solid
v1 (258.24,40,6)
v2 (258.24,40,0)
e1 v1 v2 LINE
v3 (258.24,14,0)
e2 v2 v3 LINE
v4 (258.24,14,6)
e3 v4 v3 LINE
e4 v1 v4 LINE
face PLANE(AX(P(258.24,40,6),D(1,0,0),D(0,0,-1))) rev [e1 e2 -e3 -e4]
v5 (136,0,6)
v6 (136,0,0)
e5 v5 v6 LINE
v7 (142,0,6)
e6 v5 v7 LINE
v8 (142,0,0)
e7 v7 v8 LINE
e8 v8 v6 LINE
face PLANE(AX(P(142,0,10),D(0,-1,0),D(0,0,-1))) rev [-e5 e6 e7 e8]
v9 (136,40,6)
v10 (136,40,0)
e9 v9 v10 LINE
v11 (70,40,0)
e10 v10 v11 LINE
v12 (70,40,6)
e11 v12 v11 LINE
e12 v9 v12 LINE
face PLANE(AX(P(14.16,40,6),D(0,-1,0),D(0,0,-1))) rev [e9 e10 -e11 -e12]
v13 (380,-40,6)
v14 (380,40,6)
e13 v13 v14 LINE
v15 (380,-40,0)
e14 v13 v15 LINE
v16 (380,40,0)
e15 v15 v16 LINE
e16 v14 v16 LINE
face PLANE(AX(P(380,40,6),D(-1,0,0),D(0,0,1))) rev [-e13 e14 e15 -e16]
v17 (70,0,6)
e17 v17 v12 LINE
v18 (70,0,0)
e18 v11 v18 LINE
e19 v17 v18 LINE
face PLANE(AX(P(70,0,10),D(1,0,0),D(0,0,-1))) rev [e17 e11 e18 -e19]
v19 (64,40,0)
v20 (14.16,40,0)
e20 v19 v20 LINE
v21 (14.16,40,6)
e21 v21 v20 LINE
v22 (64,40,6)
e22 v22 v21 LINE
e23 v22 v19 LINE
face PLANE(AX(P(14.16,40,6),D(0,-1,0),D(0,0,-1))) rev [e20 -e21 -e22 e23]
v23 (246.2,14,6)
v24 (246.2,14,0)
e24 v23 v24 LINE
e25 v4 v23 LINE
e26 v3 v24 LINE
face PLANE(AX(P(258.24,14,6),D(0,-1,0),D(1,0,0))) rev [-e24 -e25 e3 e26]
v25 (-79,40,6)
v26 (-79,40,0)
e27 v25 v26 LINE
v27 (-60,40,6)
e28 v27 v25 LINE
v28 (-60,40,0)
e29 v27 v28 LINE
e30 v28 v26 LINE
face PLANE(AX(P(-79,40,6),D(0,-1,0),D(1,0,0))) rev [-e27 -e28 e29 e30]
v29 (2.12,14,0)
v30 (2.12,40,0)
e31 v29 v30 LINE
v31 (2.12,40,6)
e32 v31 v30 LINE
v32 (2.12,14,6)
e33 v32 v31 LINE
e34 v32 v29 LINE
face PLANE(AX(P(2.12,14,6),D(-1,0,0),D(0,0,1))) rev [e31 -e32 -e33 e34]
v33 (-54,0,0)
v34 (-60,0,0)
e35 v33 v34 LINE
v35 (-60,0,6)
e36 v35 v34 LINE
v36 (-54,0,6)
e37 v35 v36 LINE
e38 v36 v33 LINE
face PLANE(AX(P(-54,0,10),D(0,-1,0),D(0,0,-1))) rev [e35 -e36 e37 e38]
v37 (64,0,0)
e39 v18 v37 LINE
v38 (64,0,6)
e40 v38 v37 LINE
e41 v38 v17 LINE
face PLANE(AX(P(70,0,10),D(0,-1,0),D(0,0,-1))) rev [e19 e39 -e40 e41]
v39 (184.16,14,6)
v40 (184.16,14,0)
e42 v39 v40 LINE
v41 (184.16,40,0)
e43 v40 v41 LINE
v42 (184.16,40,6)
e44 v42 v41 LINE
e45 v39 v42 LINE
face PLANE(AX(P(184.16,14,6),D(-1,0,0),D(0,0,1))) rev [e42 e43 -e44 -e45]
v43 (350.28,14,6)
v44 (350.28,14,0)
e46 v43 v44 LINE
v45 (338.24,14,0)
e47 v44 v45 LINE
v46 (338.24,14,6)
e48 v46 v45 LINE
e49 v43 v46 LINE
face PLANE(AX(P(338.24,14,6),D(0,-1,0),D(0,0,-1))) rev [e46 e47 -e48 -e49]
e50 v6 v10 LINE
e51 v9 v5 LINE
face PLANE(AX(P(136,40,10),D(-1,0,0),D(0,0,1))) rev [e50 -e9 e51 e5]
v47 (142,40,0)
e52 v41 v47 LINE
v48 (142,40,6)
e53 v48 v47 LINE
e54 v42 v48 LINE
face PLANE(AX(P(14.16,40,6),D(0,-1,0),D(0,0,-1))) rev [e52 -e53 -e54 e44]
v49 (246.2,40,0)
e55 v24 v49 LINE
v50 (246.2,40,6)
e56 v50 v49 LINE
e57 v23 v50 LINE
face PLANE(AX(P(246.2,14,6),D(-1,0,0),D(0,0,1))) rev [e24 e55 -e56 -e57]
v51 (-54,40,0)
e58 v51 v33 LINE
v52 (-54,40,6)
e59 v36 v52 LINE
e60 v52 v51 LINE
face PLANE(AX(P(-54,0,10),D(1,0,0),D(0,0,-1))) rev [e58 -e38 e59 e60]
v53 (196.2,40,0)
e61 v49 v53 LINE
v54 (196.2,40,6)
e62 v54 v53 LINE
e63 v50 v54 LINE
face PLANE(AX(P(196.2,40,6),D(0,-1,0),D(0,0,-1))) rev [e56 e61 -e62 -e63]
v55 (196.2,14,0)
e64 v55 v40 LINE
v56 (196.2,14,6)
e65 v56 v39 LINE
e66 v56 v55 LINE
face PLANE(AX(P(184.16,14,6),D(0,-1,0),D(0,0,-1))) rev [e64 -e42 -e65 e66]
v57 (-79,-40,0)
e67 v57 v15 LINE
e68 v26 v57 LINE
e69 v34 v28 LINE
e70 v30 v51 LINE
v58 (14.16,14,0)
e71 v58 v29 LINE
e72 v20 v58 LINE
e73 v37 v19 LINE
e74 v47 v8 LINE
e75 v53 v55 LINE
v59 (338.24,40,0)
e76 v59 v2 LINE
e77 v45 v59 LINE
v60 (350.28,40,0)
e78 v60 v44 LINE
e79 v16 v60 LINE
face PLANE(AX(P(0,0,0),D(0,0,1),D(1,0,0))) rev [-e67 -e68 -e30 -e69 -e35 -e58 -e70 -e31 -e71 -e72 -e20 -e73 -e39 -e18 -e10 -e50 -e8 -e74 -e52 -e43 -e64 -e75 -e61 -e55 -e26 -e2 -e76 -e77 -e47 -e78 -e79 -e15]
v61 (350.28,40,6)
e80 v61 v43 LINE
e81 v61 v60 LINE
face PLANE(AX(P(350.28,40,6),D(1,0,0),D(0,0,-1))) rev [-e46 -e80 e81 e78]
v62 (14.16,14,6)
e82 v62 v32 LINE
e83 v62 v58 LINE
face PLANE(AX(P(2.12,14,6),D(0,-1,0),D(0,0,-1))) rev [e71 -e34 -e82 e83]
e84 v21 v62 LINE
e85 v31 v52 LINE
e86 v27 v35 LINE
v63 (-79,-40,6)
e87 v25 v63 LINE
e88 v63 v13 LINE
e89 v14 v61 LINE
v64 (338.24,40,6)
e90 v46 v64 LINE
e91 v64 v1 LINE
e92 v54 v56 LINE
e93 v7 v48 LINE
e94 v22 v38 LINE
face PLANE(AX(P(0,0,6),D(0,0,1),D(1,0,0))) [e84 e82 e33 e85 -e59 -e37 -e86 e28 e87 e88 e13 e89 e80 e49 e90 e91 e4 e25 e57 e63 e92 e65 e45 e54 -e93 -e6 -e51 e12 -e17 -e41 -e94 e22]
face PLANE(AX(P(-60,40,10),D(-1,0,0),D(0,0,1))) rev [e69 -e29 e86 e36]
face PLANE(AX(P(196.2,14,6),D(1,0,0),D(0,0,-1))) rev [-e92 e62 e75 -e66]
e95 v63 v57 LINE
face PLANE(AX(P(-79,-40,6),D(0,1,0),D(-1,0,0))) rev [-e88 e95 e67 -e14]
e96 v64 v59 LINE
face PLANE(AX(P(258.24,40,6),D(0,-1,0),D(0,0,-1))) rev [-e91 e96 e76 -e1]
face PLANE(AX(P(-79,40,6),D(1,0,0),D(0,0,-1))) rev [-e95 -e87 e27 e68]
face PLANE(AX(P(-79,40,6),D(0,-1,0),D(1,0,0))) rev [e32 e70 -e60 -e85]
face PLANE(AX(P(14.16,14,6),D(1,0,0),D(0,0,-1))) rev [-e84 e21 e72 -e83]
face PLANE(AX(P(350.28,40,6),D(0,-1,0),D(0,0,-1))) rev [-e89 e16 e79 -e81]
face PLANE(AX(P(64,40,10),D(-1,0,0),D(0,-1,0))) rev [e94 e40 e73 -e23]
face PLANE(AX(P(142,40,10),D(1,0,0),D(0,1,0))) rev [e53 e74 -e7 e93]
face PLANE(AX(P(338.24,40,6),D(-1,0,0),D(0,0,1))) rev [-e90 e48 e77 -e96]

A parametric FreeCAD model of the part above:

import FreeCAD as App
import Part
import Sketcher

V = App.Vector

doc = App.newDocument("Part")
body = doc.addObject("PartDesign::Body", "Body")

# Sketch on XY plane
sketch1 = doc.addObject("Sketcher::SketchObject", "Sketch")
body.addObject(sketch1)
sketch1.AttachmentSupport = (doc.XY_Plane, [""])
sketch1.MapMode = "FlatFace"
sketch1.addGeometry([
    Part.LineSegment(V(-79, -40, 0), V(380, -40, 0)),  # 0
    Part.LineSegment(V(380, -40, 0), V(380, 40, 0)),  # 1
    Part.LineSegment(V(380, 40, 0), V(350.28, 40, 0)),  # 2
    Part.LineSegment(V(350.28, 40, 0), V(350.28, 14, 0)),  # 3
    Part.LineSegment(V(350.28, 14, 0), V(338.24, 14, 0)),  # 4
    Part.LineSegment(V(338.24, 14, 0), V(338.24, 40, 0)),  # 5
    Part.LineSegment(V(338.24, 40, 0), V(258.24, 40, 0)),  # 6
    Part.LineSegment(V(258.24, 40, 0), V(258.24, 14, 0)),  # 7
    Part.LineSegment(V(258.24, 14, 0), V(246.2, 14, 0)),  # 8
    Part.LineSegment(V(246.2, 14, 0), V(246.2, 40, 0)),  # 9
    Part.LineSegment(V(246.2, 40, 0), V(196.2, 40, 0)),  # 10
    Part.LineSegment(V(196.2, 40, 0), V(196.2, 14, 0)),  # 11
    Part.LineSegment(V(196.2, 14, 0), V(184.16, 14, 0)),  # 12
    Part.LineSegment(V(184.16, 14, 0), V(184.16, 40, 0)),  # 13
    Part.LineSegment(V(184.16, 40, 0), V(14.16, 40, 0)),  # 14
    Part.LineSegment(V(14.16, 40, 0), V(14.16, 14, 0)),  # 15
    Part.LineSegment(V(14.16, 14, 0), V(2.12, 14, 0)),  # 16
    Part.LineSegment(V(2.12, 14, 0), V(2.12, 40, 0)),  # 17
    Part.LineSegment(V(2.12, 40, 0), V(-79, 40, 0)),  # 18
    Part.LineSegment(V(-79, 40, 0), V(-79, -40, 0)),  # 19
], False)
sketch1.addConstraint([
    Sketcher.Constraint("Coincident", 0, 2, 1, 1),
    Sketcher.Constraint("Coincident", 1, 2, 2, 1),
    Sketcher.Constraint("Coincident", 2, 2, 3, 1),
    Sketcher.Constraint("Coincident", 3, 2, 4, 1),
    Sketcher.Constraint("Coincident", 4, 2, 5, 1),
    Sketcher.Constraint("Coincident", 5, 2, 6, 1),
    Sketcher.Constraint("Coincident", 6, 2, 7, 1),
    Sketcher.Constraint("Coincident", 7, 2, 8, 1),
    Sketcher.Constraint("Coincident", 8, 2, 9, 1),
    Sketcher.Constraint("Coincident", 9, 2, 10, 1),
    Sketcher.Constraint("Coincident", 10, 2, 11, 1),
    Sketcher.Constraint("Coincident", 11, 2, 12, 1),
    Sketcher.Constraint("Coincident", 12, 2, 13, 1),
    Sketcher.Constraint("Coincident", 13, 2, 14, 1),
    Sketcher.Constraint("Coincident", 14, 2, 15, 1),
    Sketcher.Constraint("Coincident", 15, 2, 16, 1),
    Sketcher.Constraint("Coincident", 16, 2, 17, 1),
    Sketcher.Constraint("Coincident", 17, 2, 18, 1),
    Sketcher.Constraint("Coincident", 18, 2, 19, 1),
    Sketcher.Constraint("Coincident", 19, 2, 0, 1),
    Sketcher.Constraint("Horizontal", 0),
    Sketcher.Constraint("Vertical", 1),
    Sketcher.Constraint("Horizontal", 2),
    Sketcher.Constraint("Vertical", 3),
    Sketcher.Constraint("Horizontal", 4),
    Sketcher.Constraint("Vertical", 5),
    Sketcher.Constraint("Horizontal", 6),
    Sketcher.Constraint("Vertical", 7),
    Sketcher.Constraint("Horizontal", 8),
    Sketcher.Constraint("Vertical", 9),
    Sketcher.Constraint("Horizontal", 10),
    Sketcher.Constraint("Vertical", 11),
    Sketcher.Constraint("Horizontal", 12),
    Sketcher.Constraint("Vertical", 13),
    Sketcher.Constraint("Horizontal", 14),
    Sketcher.Constraint("Vertical", 15),
    Sketcher.Constraint("Horizontal", 16),
    Sketcher.Constraint("Vertical", 17),
    Sketcher.Constraint("Horizontal", 18),
    Sketcher.Constraint("Vertical", 19),
    Sketcher.Constraint("Horizontal", 2, 2, 5, 2),
    Sketcher.Constraint("Horizontal", 4, 2, 7, 2),
    Sketcher.Constraint("Horizontal", 6, 2, 9, 2),
    Sketcher.Constraint("Horizontal", 8, 2, 11, 2),
    Sketcher.Constraint("Horizontal", 10, 2, 13, 2),
    Sketcher.Constraint("Horizontal", 12, 2, 15, 2),
    Sketcher.Constraint("Horizontal", 14, 2, 17, 2),
    Sketcher.Constraint("Equal", 4, 8),
    Sketcher.Constraint("Equal", 8, 12),
    Sketcher.Constraint("Equal", 12, 16),
    Sketcher.Constraint("Equal", 6, 1),
    Sketcher.Constraint("DistanceX", 0, 1, 0, 2, 459.0),
    Sketcher.Constraint("DistanceX", 6, 2, 6, 1, 80.0),
    Sketcher.Constraint("DistanceX", 10, 2, 10, 1, 50.0),
    Sketcher.Constraint("DistanceX", 14, 2, 14, 1, 170.0),
    Sketcher.Constraint("DistanceY", 3, 2, 3, 1, 26.0),
    Sketcher.Constraint("DistanceX", -1, 1, 0, 2, 380.0),
    Sketcher.Constraint("DistanceY", 0, 2, -1, 1, 40.0),
    Sketcher.Constraint("DistanceX", 2, 2, 2, 1, 29.72),
    Sketcher.Constraint("DistanceX", 4, 2, 4, 1, 12.04),
])
pad1 = doc.addObject("PartDesign::Pad", "Pad")
body.addObject(pad1)
pad1.Profile = sketch1
pad1.Length = 6

# Sketch on XY plane
sketch2 = doc.addObject("Sketcher::SketchObject", "Sketch001")
body.addObject(sketch2)
sketch2.AttachmentSupport = (doc.XY_Plane, [""])
sketch2.MapMode = "FlatFace"
sketch2.addGeometry([
    Part.LineSegment(V(70, 40, 0), V(70, 0, 0)),  # 0
    Part.LineSegment(V(70, 0, 0), V(64, 0, 0)),  # 1
    Part.LineSegment(V(64, 0, 0), V(64, 40, 0)),  # 2
    Part.LineSegment(V(64, 40, 0), V(70, 40, 0)),  # 3
    Part.LineSegment(V(-54, 40, 0), V(-54, 0, 0)),  # 4
    Part.LineSegment(V(-54, 0, 0), V(-60, 0, 0)),  # 5
    Part.LineSegment(V(-60, 0, 0), V(-60, 40, 0)),  # 6
    Part.LineSegment(V(-60, 40, 0), V(-54, 40, 0)),  # 7
    Part.LineSegment(V(142, 40, 0), V(142, 0, 0)),  # 8
    Part.LineSegment(V(142, 0, 0), V(136, 0, 0)),  # 9
    Part.LineSegment(V(136, 0, 0), V(136, 40, 0)),  # 10
    Part.LineSegment(V(136, 40, 0), V(142, 40, 0)),  # 11
], False)
sketch2.addConstraint([
    Sketcher.Constraint("Coincident", 0, 2, 1, 1),
    Sketcher.Constraint("Coincident", 1, 2, 2, 1),
    Sketcher.Constraint("Coincident", 2, 2, 3, 1),
    Sketcher.Constraint("Coincident", 3, 2, 0, 1),
    Sketcher.Constraint("Coincident", 4, 2, 5, 1),
    Sketcher.Constraint("Coincident", 5, 2, 6, 1),
    Sketcher.Constraint("Coincident", 6, 2, 7, 1),
    Sketcher.Constraint("Coincident", 7, 2, 4, 1),
    Sketcher.Constraint("Coincident", 8, 2, 9, 1),
    Sketcher.Constraint("Coincident", 9, 2, 10, 1),
    Sketcher.Constraint("Coincident", 10, 2, 11, 1),
    Sketcher.Constraint("Coincident", 11, 2, 8, 1),
    Sketcher.Constraint("Vertical", 0),
    Sketcher.Constraint("Horizontal", 1),
    Sketcher.Constraint("Vertical", 2),
    Sketcher.Constraint("Horizontal", 3),
    Sketcher.Constraint("Vertical", 4),
    Sketcher.Constraint("Horizontal", 5),
    Sketcher.Constraint("Vertical", 6),
    Sketcher.Constraint("Horizontal", 7),
    Sketcher.Constraint("Vertical", 8),
    Sketcher.Constraint("Horizontal", 9),
    Sketcher.Constraint("Vertical", 10),
    Sketcher.Constraint("Horizontal", 11),
    Sketcher.Constraint("PointOnObject", 0, 2, -1),
    Sketcher.Constraint("PointOnObject", 4, 2, -1),
    Sketcher.Constraint("PointOnObject", 8, 2, -1),
    Sketcher.Constraint("Horizontal", 3, 2, 6, 2),
    Sketcher.Constraint("Horizontal", 7, 2, 10, 2),
    Sketcher.Constraint("Equal", 3, 5),
    Sketcher.Constraint("Equal", 7, 9),
    Sketcher.Constraint("DistanceX", 1, 2, 1, 1, 6.0),
    Sketcher.Constraint("DistanceY", 0, 2, 0, 1, 40.0),
    Sketcher.Constraint("DistanceX", -1, 1, 0, 2, 70.0),
    Sketcher.Constraint("DistanceX", 4, 2, -1, 1, 54.0),
    Sketcher.Constraint("DistanceX", -1, 1, 8, 2, 142.0),
])
pocket1 = doc.addObject("PartDesign::Pocket", "Pocket")
body.addObject(pocket1)
pocket1.Profile = sketch2
pocket1.Length = 10
pocket1.Reversed = True

doc.recompute()
